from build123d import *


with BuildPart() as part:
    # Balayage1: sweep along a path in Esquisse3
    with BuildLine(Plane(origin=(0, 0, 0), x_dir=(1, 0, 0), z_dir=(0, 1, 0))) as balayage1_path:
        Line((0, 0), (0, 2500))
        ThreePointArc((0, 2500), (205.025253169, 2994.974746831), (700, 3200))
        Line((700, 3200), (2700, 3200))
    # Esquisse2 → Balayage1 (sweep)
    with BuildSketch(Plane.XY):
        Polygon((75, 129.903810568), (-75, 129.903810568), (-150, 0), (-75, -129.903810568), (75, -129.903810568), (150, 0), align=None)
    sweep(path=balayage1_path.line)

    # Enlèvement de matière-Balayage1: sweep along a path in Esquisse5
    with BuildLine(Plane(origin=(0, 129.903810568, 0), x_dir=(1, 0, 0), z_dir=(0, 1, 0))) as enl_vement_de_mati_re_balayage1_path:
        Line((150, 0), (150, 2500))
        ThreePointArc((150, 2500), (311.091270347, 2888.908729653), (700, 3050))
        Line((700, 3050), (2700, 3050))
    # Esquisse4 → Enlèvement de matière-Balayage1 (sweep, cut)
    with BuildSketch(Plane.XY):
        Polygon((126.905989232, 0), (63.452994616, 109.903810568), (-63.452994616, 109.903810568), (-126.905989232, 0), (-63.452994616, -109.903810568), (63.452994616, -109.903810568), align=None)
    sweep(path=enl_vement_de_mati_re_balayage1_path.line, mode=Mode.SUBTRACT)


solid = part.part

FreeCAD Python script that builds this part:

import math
import FreeCAD as App
import Part
import Sketcher

V = App.Vector
Q = App.Units.Quantity

doc = App.newDocument("Part")
body = doc.addObject("PartDesign::Body", "Body")

sketch1 = doc.addObject("Sketcher::SketchObject", "Sketch")
body.addObject(sketch1)
sketch1.AttachmentSupport = (doc.XY_Plane, [""])
sketch1.MapMode = "FlatFace"
sketch1.addGeometry([
    Part.LineSegment(V(75, 130, 0), V(-75, 130, 0)),
    Part.LineSegment(V(-75, 130, 0), V(-150, 0, 0)),
    Part.LineSegment(V(-150, 0, 0), V(-75, -130, 0)),
    Part.LineSegment(V(-75, -130, 0), V(75, -130, 0)),
    Part.LineSegment(V(75, -130, 0), V(150, 0, 0)),
    Part.LineSegment(V(150, 0, 0), V(75, 130, 0)),
], False)
sketch1.addConstraint([
    Sketcher.Constraint("Coincident", 0, 2, 1, 1),
    Sketcher.Constraint("Coincident", 1, 2, 2, 1),
    Sketcher.Constraint("Coincident", 2, 2, 3, 1),
    Sketcher.Constraint("Coincident", 3, 2, 4, 1),
    Sketcher.Constraint("Coincident", 4, 2, 5, 1),
    Sketcher.Constraint("Coincident", 5, 2, 0, 1),
    Sketcher.Constraint("Horizontal", 0),
    Sketcher.Constraint("Horizontal", 3),
    Sketcher.Constraint("Symmetric", 0, 2, 3, 2, -1, 1),
    Sketcher.Constraint("Symmetric", 1, 2, 4, 2, -1, 1),
    Sketcher.Constraint("PointOnObject", 1, 2, -1),
    Sketcher.Constraint("Parallel", 2, 5),
    Sketcher.Constraint("Vertical", 0, 2, 2, 2),
    Sketcher.Constraint("DistanceX", 0, 2, 0, 1, 150.0),
    Sketcher.Constraint("Angle", 1, Q("-120 deg")),
    Sketcher.Constraint("Distance", 1, 150.0),
])

sketch2 = doc.addObject("Sketcher::SketchObject", "Sketch001")
body.addObject(sketch2)
sketch2.AttachmentSupport = (doc.XZ_Plane, [""])
sketch2.MapMode = "FlatFace"
sketch2.addGeometry([
    Part.LineSegment(V(0, 0, 0), V(0, -2500, 0)),
    Part.ArcOfCircle(Part.Circle(V(700, -2500, 0), V(0, 0, 1), 700), math.radians(180), math.radians(270)),
    Part.LineSegment(V(700, -3200, 0), V(2700, -3200, 0)),
], False)
sketch2.addConstraint([
    Sketcher.Constraint("Tangent", 0, 2, 1, 1),
    Sketcher.Constraint("Coincident", 1, 2, 2, 1),
    Sketcher.Constraint("Vertical", 0),
    Sketcher.Constraint("Horizontal", 2),
    Sketcher.Constraint("Coincident", 0, 1, -1, 1),
    Sketcher.Constraint("Radius", 1, 700.0),
    Sketcher.Constraint("DistanceX", 2, 1, 2, 2, 2000.0),
    Sketcher.Constraint("DistanceY", 0, 2, 0, 1, 2500.0),
    Sketcher.Constraint("DistanceX", -1, 1, 2, 2, 2700.0),
])
doc.recompute()

additivepipe = doc.addObject("PartDesign::AdditivePipe", "AdditivePipe")
body.addObject(additivepipe)
additivepipe.Profile = sketch1
additivepipe.Spine = (sketch2, ["Edge1", "Edge2", "Edge3"])

sketch3 = doc.addObject("Sketcher::SketchObject", "Sketch002")
body.addObject(sketch3)
sketch3.AttachmentSupport = (doc.XY_Plane, [""])
sketch3.MapMode = "FlatFace"
sketch3.addGeometry([
    Part.LineSegment(V(127, 0, 0), V(63, 110, 0)),
    Part.LineSegment(V(63, 110, 0), V(-63, 110, 0)),
    Part.LineSegment(V(-63, 110, 0), V(-127, 0, 0)),
    Part.LineSegment(V(-127, 0, 0), V(-63, -110, 0)),
    Part.LineSegment(V(-63, -110, 0), V(63, -110, 0)),
    Part.LineSegment(V(63, -110, 0), V(127, 0, 0)),
], False)
sketch3.addConstraint([
    Sketcher.Constraint("Coincident", 0, 2, 1, 1),
    Sketcher.Constraint("Coincident", 1, 2, 2, 1),
    Sketcher.Constraint("Coincident", 2, 2, 3, 1),
    Sketcher.Constraint("Coincident", 3, 2, 4, 1),
    Sketcher.Constraint("Coincident", 4, 2, 5, 1),
    Sketcher.Constraint("Coincident", 5, 2, 0, 1),
    Sketcher.Constraint("Horizontal", 1),
    Sketcher.Constraint("Horizontal", 4),
    Sketcher.Constraint("Symmetric", 0, 2, 3, 2, -1, 1),
    Sketcher.Constraint("Symmetric", 2, 2, 5, 2, -1, 1),
    Sketcher.Constraint("PointOnObject", 2, 2, -1),
    Sketcher.Constraint("Parallel", 2, 5),
    Sketcher.Constraint("Vertical", 1, 2, 3, 2),
    Sketcher.Constraint("Angle", 0, Q("120 deg")),
    Sketcher.Constraint("DistanceX", 1, 2, 1, 1, 126.905989),
    Sketcher.Constraint("Distance", 0, 126.905989),
])

sketch4 = doc.addObject("Sketcher::SketchObject", "Sketch003")
body.addObject(sketch4)
sketch4.AttachmentSupport = (doc.XZ_Plane, [""])
sketch4.MapMode = "FlatFace"
sketch4.AttachmentOffset = App.Placement(V(0, 0, -129.903811), App.Rotation())
sketch4.addGeometry([
    Part.LineSegment(V(150, 0, 0), V(150, -2500, 0)),
    Part.ArcOfCircle(Part.Circle(V(700, -2500, 0), V(0, 0, 1), 550), math.radians(180), math.radians(270)),
    Part.LineSegment(V(700, -3050, 0), V(2700, -3050, 0)),
], False)
sketch4.addConstraint([
    Sketcher.Constraint("Tangent", 0, 2, 1, 1),
    Sketcher.Constraint("Tangent", 1, 2, 2, 1),
    Sketcher.Constraint("Vertical", 0),
    Sketcher.Constraint("Horizontal", 2),
    Sketcher.Constraint("PointOnObject", 0, 1, -1),
    Sketcher.Constraint("Radius", 1, 550.0),
    Sketcher.Constraint("DistanceX", 2, 1, 2, 2, 2000.0),
    Sketcher.Constraint("DistanceY", 0, 2, 0, 1, 2500.0),
    Sketcher.Constraint("DistanceX", -1, 1, 1, 3, 700.0),
])
doc.recompute()

subtractivepipe = doc.addObject("PartDesign::SubtractivePipe", "SubtractivePipe")
body.addObject(subtractivepipe)
subtractivepipe.Profile = sketch3
subtractivepipe.Spine = (sketch4, ["Edge1", "Edge2", "Edge3"])

doc.recompute()
